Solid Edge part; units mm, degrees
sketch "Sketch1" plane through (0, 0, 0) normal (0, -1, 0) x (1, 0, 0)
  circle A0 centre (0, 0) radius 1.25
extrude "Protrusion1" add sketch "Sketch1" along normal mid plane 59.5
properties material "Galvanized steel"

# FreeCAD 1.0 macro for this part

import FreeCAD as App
import Part
import Sketcher

doc = App.newDocument("Part")
body = doc.addObject("PartDesign::Body", "Body")

# Sketch on XZ plane
sketch1 = body.newObject("Sketcher::SketchObject", "Sketch")
sketch1.AttachmentSupport = (doc.getObject("XZ_Plane"), [""])
sketch1.MapMode = "FlatFace"
sketch1.addGeometry(Part.Circle(App.Vector(0, 0, 0), App.Vector(0, 0, 1), 1.2), False)
sketch1.addConstraint(Sketcher.Constraint("Coincident", 0, 3, -1, 1))
sketch1.addConstraint(Sketcher.Constraint("Diameter", 0, 2.5))
pad1 = body.newObject("PartDesign::Pad", "Pad")
pad1.Profile = sketch1
pad1.Length = 59.5
pad1.Midplane = True

doc.recompute()
